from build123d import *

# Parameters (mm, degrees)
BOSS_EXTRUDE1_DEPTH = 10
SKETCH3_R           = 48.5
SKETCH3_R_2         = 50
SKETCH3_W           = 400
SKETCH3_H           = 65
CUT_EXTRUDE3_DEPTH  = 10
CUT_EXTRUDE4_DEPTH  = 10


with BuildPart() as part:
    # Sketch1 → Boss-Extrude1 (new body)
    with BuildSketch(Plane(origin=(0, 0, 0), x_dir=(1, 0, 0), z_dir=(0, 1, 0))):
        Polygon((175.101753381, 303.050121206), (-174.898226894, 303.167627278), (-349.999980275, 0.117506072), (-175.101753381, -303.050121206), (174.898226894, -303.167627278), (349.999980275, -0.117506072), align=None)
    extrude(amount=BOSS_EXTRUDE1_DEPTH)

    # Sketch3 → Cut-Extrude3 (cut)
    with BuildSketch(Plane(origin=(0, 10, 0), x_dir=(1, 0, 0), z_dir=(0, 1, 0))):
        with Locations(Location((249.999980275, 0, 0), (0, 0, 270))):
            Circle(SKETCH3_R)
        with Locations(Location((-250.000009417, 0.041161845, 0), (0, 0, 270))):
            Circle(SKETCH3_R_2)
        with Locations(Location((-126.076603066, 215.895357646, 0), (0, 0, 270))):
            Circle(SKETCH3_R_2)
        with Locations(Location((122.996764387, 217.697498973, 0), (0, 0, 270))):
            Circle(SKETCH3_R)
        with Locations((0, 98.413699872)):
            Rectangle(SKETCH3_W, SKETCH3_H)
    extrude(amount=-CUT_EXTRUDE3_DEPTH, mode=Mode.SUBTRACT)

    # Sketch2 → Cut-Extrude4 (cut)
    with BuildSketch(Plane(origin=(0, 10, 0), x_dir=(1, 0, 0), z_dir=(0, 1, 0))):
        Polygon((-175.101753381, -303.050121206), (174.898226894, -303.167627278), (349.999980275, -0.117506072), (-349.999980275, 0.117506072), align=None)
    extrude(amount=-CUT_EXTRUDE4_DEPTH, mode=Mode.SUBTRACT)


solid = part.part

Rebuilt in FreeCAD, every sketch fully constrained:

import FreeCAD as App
import Part
import Sketcher
from FreeCAD import Vector

doc = App.newDocument("Part")
body = doc.addObject("PartDesign::Body", "Body")

sketch1 = body.newObject("Sketcher::SketchObject", "Sketch")
sketch1.AttachmentSupport = (doc.getObject("XZ_Plane"), [""])
sketch1.MapMode = "FlatFace"
sketch1.addGeometry([
    Part.LineSegment(Vector(175, -303, 0), Vector(-175, -303, 0)),
    Part.LineSegment(Vector(-175, -303, 0), Vector(-350, 0, 0)),
    Part.LineSegment(Vector(-350, 0, 0), Vector(-175, 303, 0)),
    Part.LineSegment(Vector(-175, 303, 0), Vector(175, 303, 0)),
    Part.LineSegment(Vector(175, 303, 0), Vector(350, 0, 0)),
    Part.LineSegment(Vector(350, 0, 0), Vector(175, -303, 0)),
], False)
sketch1.addConstraint([
    Sketcher.Constraint("Coincident", 0, 2, 1, 1),
    Sketcher.Constraint("Coincident", 1, 2, 2, 1),
    Sketcher.Constraint("Coincident", 2, 2, 3, 1),
    Sketcher.Constraint("Coincident", 3, 2, 4, 1),
    Sketcher.Constraint("Coincident", 4, 2, 5, 1),
    Sketcher.Constraint("Coincident", 5, 2, 0, 1),
    Sketcher.Constraint("Symmetric", 0, 2, 3, 2, -1, 1),
    Sketcher.Constraint("Symmetric", 1, 2, 4, 2, -1, 1),
    Sketcher.Constraint("Symmetric", 2, 2, 5, 2, -1, 1),
    Sketcher.Constraint("Equal", 0, 1),
    Sketcher.Constraint("Equal", 1, 2),
    Sketcher.Constraint("Distance", 0, 350.0),
    Sketcher.Constraint("DistanceX", 1, 2, -1, 1, 349.99998),
    Sketcher.Constraint("DistanceY", -1, 1, 2, 2, 303.050121),
    Sketcher.Constraint("DistanceY", 0, 2, 1, 2, 303.050121),
])
pad1 = body.newObject("PartDesign::Pad", "Pad")
pad1.Profile = sketch1
pad1.Length = 10
pad1.Reversed = True

sketch2 = body.newObject("Sketcher::SketchObject", "Sketch001")
sketch2.AttachmentSupport = (doc.getObject("XZ_Plane"), [""])
sketch2.MapMode = "FlatFace"
sketch2.AttachmentOffset = App.Placement(Vector(0, 0, -10), App.Rotation())
sketch2.addGeometry([
    Part.Circle(Vector(250, 0, 0), Vector(0, 0, 1), 48),
    Part.Circle(Vector(-250, 0, 0), Vector(0, 0, 1), 50),
    Part.Circle(Vector(-126, -216, 0), Vector(0, 0, 1), 50),
    Part.Circle(Vector(123, -218, 0), Vector(0, 0, 1), 48),
    Part.LineSegment(Vector(-200, -131, 0), Vector(-200, -66, 0)),
    Part.LineSegment(Vector(-200, -66, 0), Vector(200, -66, 0)),
    Part.LineSegment(Vector(200, -66, 0), Vector(200, -131, 0)),
    Part.LineSegment(Vector(200, -131, 0), Vector(-200, -131, 0)),
], False)
sketch2.addConstraint([
    Sketcher.Constraint("Coincident", 4, 2, 5, 1),
    Sketcher.Constraint("Coincident", 5, 2, 6, 1),
    Sketcher.Constraint("Coincident", 6, 2, 7, 1),
    Sketcher.Constraint("Coincident", 7, 2, 4, 1),
    Sketcher.Constraint("Vertical", 4),
    Sketcher.Constraint("Horizontal", 5),
    Sketcher.Constraint("Vertical", 6),
    Sketcher.Constraint("Horizontal", 7),
    Sketcher.Constraint("Equal", 1, 2),
    Sketcher.Constraint("Equal", 0, 3),
    Sketcher.Constraint("PointOnObject", 0, 3, -1),
    Sketcher.Constraint("Diameter", 0, 97.0),
    Sketcher.Constraint("Diameter", 1, 100.0),
    Sketcher.Constraint("DistanceX", 5, 1, 5, 2, 400.0),
    Sketcher.Constraint("DistanceY", 4, 1, 4, 2, 65.0),
    Sketcher.Constraint("DistanceX", 4, 2, -1, 1, 200.0),
    Sketcher.Constraint("DistanceY", 3, 3, -1, 1, 217.697499),
    Sketcher.Constraint("DistanceY", 4, 2, -1, 1, 65.9137),
    Sketcher.Constraint("DistanceX", -1, 1, 0, 3, 249.99998),
    Sketcher.Constraint("DistanceX", 1, 3, -1, 1, 250.000009),
    Sketcher.Constraint("DistanceY", 1, 3, -1, 1, 0.041162),
    Sketcher.Constraint("DistanceY", 3, 3, 2, 3, 1.802141),
    Sketcher.Constraint("DistanceX", 2, 3, -1, 1, 126.076603),
    Sketcher.Constraint("DistanceX", -1, 1, 3, 3, 122.996764),
])
pocket1 = body.newObject("PartDesign::Pocket", "Pocket")
pocket1.Profile = sketch2
pocket1.Length = 10
pocket1.Reversed = True

sketch3 = body.newObject("Sketcher::SketchObject", "Sketch002")
sketch3.AttachmentSupport = (doc.getObject("XZ_Plane"), [""])
sketch3.MapMode = "FlatFace"
sketch3.AttachmentOffset = App.Placement(Vector(0, 0, -10), App.Rotation())
sketch3.addGeometry([
    Part.LineSegment(Vector(-175, 303, 0), Vector(175, 303, 0)),
    Part.LineSegment(Vector(175, 303, 0), Vector(350, 0, 0)),
    Part.LineSegment(Vector(350, 0, 0), Vector(-350, 0, 0)),
    Part.LineSegment(Vector(-350, 0, 0), Vector(-175, 303, 0)),
], False)
sketch3.addConstraint([
    Sketcher.Constraint("Coincident", 0, 2, 1, 1),
    Sketcher.Constraint("Coincident", 1, 2, 2, 1),
    Sketcher.Constraint("Coincident", 2, 2, 3, 1),
    Sketcher.Constraint("Coincident", 3, 2, 0, 1),
    Sketcher.Constraint("Symmetric", 1, 2, 2, 2, -1, 1),
    Sketcher.Constraint("Parallel", 0, 2),
    Sketcher.Constraint("Equal", 0, 1),
    Sketcher.Constraint("Equal", 1, 3),
    Sketcher.Constraint("Distance", 0, 350.0),
    Sketcher.Constraint("Distance", 2, 700.0),
    Sketcher.Constraint("DistanceY", -1, 1, 3, 2, 303.050121),
])
pocket2 = body.newObject("PartDesign::Pocket", "Pocket001")
pocket2.Profile = sketch3
pocket2.Length = 10
pocket2.Reversed = True

doc.recompute()
